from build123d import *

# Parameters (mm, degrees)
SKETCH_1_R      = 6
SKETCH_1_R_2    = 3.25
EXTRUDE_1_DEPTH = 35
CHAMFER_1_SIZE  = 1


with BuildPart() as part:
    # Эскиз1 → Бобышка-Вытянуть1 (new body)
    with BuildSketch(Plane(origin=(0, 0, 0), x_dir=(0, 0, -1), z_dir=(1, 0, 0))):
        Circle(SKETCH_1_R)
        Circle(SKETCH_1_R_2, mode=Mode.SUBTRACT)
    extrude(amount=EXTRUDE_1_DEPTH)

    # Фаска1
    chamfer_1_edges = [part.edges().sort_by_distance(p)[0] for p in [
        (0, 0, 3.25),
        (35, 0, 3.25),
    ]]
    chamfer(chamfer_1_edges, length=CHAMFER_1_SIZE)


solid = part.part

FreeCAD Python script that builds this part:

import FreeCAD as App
import Part
import Sketcher
Q = App.Units.Quantity


def edges_at(feature, points):
    """Names of the edges that pass closest to the given points."""
    edges = feature.Shape.Edges
    near = lambda p: min(range(len(edges)), key=lambda i: edges[i].distToShape(Part.Vertex(*p))[0])
    return sorted({f"Edge{near(p) + 1}" for p in points})

doc = App.newDocument("Part")
body = doc.addObject("PartDesign::Body", "Body")

# Sketch on YZ plane
sketch1 = body.newObject("Sketcher::SketchObject", "Sketch")
sketch1.AttachmentSupport = (doc.getObject("YZ_Plane"), [""])
sketch1.MapMode = "FlatFace"
sketch1.addGeometry(Part.Circle(App.Vector(0, 0, 0), App.Vector(0, 0, 1), 6), False)
sketch1.addGeometry(Part.Circle(App.Vector(0, 0, 0), App.Vector(0, 0, 1), 3.25), False)
sketch1.addConstraint(Sketcher.Constraint("Coincident", 0, 3, -1, 1))
sketch1.addConstraint(Sketcher.Constraint("Coincident", 1, 3, -1, 1))
sketch1.addConstraint(Sketcher.Constraint("Diameter", 0, Q("12 mm")))
sketch1.addConstraint(Sketcher.Constraint("Diameter", 1, Q("6.5 mm")))
pad1 = body.newObject("PartDesign::Pad", "Pad")
pad1.Profile = sketch1
pad1.Length = 35
doc.recompute()

chamfer = body.newObject("PartDesign::Chamfer", "Chamfer")
chamfer.Base = (pad1, edges_at(pad1, [(0, 0, 3.25), (35, 0, 3.25)]))
chamfer.Size = 1

doc.recompute()
